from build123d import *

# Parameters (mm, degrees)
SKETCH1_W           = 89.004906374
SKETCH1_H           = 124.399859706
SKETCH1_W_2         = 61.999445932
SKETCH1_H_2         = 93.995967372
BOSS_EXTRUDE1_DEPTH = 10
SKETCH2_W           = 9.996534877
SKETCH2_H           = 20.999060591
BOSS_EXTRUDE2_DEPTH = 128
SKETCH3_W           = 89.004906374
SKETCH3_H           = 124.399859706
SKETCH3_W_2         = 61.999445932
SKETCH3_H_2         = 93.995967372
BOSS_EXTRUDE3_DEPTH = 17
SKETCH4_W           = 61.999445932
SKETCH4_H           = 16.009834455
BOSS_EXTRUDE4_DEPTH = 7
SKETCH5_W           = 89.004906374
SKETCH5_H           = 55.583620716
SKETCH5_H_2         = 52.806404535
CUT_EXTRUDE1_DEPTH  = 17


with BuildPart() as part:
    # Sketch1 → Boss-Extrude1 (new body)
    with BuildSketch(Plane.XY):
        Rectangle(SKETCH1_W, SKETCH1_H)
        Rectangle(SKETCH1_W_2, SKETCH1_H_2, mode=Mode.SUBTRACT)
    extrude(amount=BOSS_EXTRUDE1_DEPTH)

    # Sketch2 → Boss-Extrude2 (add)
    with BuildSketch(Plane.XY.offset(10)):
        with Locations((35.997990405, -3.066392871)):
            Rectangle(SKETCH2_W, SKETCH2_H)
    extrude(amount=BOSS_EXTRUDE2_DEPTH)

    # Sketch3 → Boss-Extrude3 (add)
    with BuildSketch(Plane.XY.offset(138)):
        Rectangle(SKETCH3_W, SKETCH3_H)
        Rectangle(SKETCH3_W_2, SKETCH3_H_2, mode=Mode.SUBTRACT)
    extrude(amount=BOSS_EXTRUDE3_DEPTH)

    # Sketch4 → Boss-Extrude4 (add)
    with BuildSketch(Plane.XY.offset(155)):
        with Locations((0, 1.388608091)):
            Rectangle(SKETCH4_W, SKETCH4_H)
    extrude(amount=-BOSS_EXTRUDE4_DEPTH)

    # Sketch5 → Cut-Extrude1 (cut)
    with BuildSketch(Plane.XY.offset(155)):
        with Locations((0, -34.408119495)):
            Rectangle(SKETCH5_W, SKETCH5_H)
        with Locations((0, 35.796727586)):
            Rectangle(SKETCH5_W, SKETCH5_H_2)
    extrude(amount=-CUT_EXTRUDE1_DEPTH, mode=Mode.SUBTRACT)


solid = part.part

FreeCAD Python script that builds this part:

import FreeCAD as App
import Part
import Sketcher
from FreeCAD import Vector


def add_polygon(sketch, points):
    """Adds a closed chain of lines whose ends are joined by coincident constraints."""
    first, n = sketch.GeometryCount, len(points)
    for a, b in zip(points, points[1:] + points[:1]):
        sketch.addGeometry(Part.LineSegment(App.Vector(*a, 0), App.Vector(*b, 0)), False)
    for i in range(n):
        sketch.addConstraint(Sketcher.Constraint("Coincident", first + i, 2, first + (i + 1) % n, 1))

doc = App.newDocument("Part")
body = doc.addObject("PartDesign::Body", "Body")

# Sketch on XY plane
sketch1 = doc.addObject("Sketcher::SketchObject", "Sketch")
body.addObject(sketch1)
sketch1.AttachmentSupport = (doc.XY_Plane, [""])
sketch1.MapMode = "FlatFace"
add_polygon(sketch1, [(-45, 62), (-45, -62), (45, -62), (45, 62)])  # lines 0-3
add_polygon(sketch1, [(31, -47), (-31, -47), (-31, 47), (31, 47)])  # lines 4-7
sketch1.addConstraint(Sketcher.Constraint("Vertical", 0))
sketch1.addConstraint(Sketcher.Constraint("Horizontal", 1))
sketch1.addConstraint(Sketcher.Constraint("Vertical", 2))
sketch1.addConstraint(Sketcher.Constraint("Horizontal", 3))
sketch1.addConstraint(Sketcher.Constraint("Horizontal", 4))
sketch1.addConstraint(Sketcher.Constraint("Vertical", 5))
sketch1.addConstraint(Sketcher.Constraint("Horizontal", 6))
sketch1.addConstraint(Sketcher.Constraint("Vertical", 7))
sketch1.addConstraint(Sketcher.Constraint("Symmetric", 0, 2, 2, 2, -1, 1))
sketch1.addConstraint(Sketcher.Constraint("Symmetric", 4, 2, 6, 2, -1, 1))
sketch1.addConstraint(Sketcher.Constraint("DistanceY", 0, 2, 0, 1, 124.39986))
sketch1.addConstraint(Sketcher.Constraint("DistanceX", 1, 1, 1, 2, 89.004906))
sketch1.addConstraint(Sketcher.Constraint("DistanceX", 4, 2, 4, 1, 61.999446))
sketch1.addConstraint(Sketcher.Constraint("DistanceY", 5, 1, 5, 2, 93.995967))
pad1 = doc.addObject("PartDesign::Pad", "Pad")
body.addObject(pad1)
pad1.Profile = sketch1
pad1.Length = 10

# Sketch on XY plane
sketch2 = doc.addObject("Sketcher::SketchObject", "Sketch001")
body.addObject(sketch2)
sketch2.AttachmentSupport = (doc.XY_Plane, [""])
sketch2.MapMode = "FlatFace"
sketch2.AttachmentOffset = App.Placement(Vector(0, 0, 10), App.Rotation())
add_polygon(sketch2, [(31, 7), (31, -14), (41, -14), (41, 7)])  # lines 0-3
sketch2.addConstraint(Sketcher.Constraint("Vertical", 0))
sketch2.addConstraint(Sketcher.Constraint("Horizontal", 1))
sketch2.addConstraint(Sketcher.Constraint("Vertical", 2))
sketch2.addConstraint(Sketcher.Constraint("Horizontal", 3))
sketch2.addConstraint(Sketcher.Constraint("DistanceY", 0, 2, 0, 1, 20.999061))
sketch2.addConstraint(Sketcher.Constraint("DistanceX", 1, 1, 1, 2, 9.996535))
sketch2.addConstraint(Sketcher.Constraint("DistanceX", -1, 1, 0, 2, 30.999723))
sketch2.addConstraint(Sketcher.Constraint("DistanceY", 0, 2, -1, 1, 13.565923))
pad2 = doc.addObject("PartDesign::Pad", "Pad001")
body.addObject(pad2)
pad2.Profile = sketch2
pad2.Length = 128

# Sketch on XY plane
sketch3 = doc.addObject("Sketcher::SketchObject", "Sketch002")
body.addObject(sketch3)
sketch3.AttachmentSupport = (doc.XY_Plane, [""])
sketch3.MapMode = "FlatFace"
sketch3.AttachmentOffset = App.Placement(Vector(0, 0, 138), App.Rotation())
add_polygon(sketch3, [(-45, 62), (-45, -62), (45, -62), (45, 62)])  # lines 0-3
add_polygon(sketch3, [(31, -47), (-31, -47), (-31, 47), (31, 47)])  # lines 4-7
sketch3.addConstraint(Sketcher.Constraint("Vertical", 0))
sketch3.addConstraint(Sketcher.Constraint("Horizontal", 1))
sketch3.addConstraint(Sketcher.Constraint("Vertical", 2))
sketch3.addConstraint(Sketcher.Constraint("Horizontal", 3))
sketch3.addConstraint(Sketcher.Constraint("Horizontal", 4))
sketch3.addConstraint(Sketcher.Constraint("Vertical", 5))
sketch3.addConstraint(Sketcher.Constraint("Horizontal", 6))
sketch3.addConstraint(Sketcher.Constraint("Vertical", 7))
sketch3.addConstraint(Sketcher.Constraint("Symmetric", 0, 2, 2, 2, -1, 1))
sketch3.addConstraint(Sketcher.Constraint("Symmetric", 4, 2, 6, 2, -1, 1))
sketch3.addConstraint(Sketcher.Constraint("DistanceY", 0, 2, 0, 1, 124.39986))
sketch3.addConstraint(Sketcher.Constraint("DistanceX", 1, 1, 1, 2, 89.004906))
sketch3.addConstraint(Sketcher.Constraint("DistanceX", 4, 2, 4, 1, 61.999446))
sketch3.addConstraint(Sketcher.Constraint("DistanceY", 5, 1, 5, 2, 93.995967))
pad3 = doc.addObject("PartDesign::Pad", "Pad002")
body.addObject(pad3)
pad3.Profile = sketch3
pad3.Length = 17

# Sketch on XY plane
sketch4 = doc.addObject("Sketcher::SketchObject", "Sketch003")
body.addObject(sketch4)
sketch4.AttachmentSupport = (doc.XY_Plane, [""])
sketch4.MapMode = "FlatFace"
sketch4.AttachmentOffset = App.Placement(Vector(0, 0, 155), App.Rotation())
add_polygon(sketch4, [(-31, 9), (-31, -7), (31, -7), (31, 9)])  # lines 0-3
sketch4.addConstraint(Sketcher.Constraint("Vertical", 0))
sketch4.addConstraint(Sketcher.Constraint("Horizontal", 1))
sketch4.addConstraint(Sketcher.Constraint("Vertical", 2))
sketch4.addConstraint(Sketcher.Constraint("Horizontal", 3))
sketch4.addConstraint(Sketcher.Constraint("DistanceX", 1, 1, 1, 2, 61.999446))
sketch4.addConstraint(Sketcher.Constraint("DistanceY", 0, 2, 0, 1, 16.009834))
sketch4.addConstraint(Sketcher.Constraint("DistanceY", 0, 2, -1, 1, 6.616309))
sketch4.addConstraint(Sketcher.Constraint("DistanceX", 0, 2, -1, 1, 30.999723))
pad4 = doc.addObject("PartDesign::Pad", "Pad003")
body.addObject(pad4)
pad4.Profile = sketch4
pad4.Length = 7
pad4.Reversed = True

# Sketch on XY plane
sketch5 = doc.addObject("Sketcher::SketchObject", "Sketch004")
body.addObject(sketch5)
sketch5.AttachmentSupport = (doc.XY_Plane, [""])
sketch5.MapMode = "FlatFace"
sketch5.AttachmentOffset = App.Placement(Vector(0, 0, 155), App.Rotation())
add_polygon(sketch5, [(-45, -7), (-45, -62), (45, -62), (45, -7)])  # lines 0-3
add_polygon(sketch5, [(-45, 62), (-45, 9), (45, 9), (45, 62)])  # lines 4-7
sketch5.addConstraint(Sketcher.Constraint("Vertical", 0))
sketch5.addConstraint(Sketcher.Constraint("Horizontal", 1))
sketch5.addConstraint(Sketcher.Constraint("Vertical", 2))
sketch5.addConstraint(Sketcher.Constraint("Horizontal", 3))
sketch5.addConstraint(Sketcher.Constraint("Vertical", 4))
sketch5.addConstraint(Sketcher.Constraint("Horizontal", 5))
sketch5.addConstraint(Sketcher.Constraint("Vertical", 6))
sketch5.addConstraint(Sketcher.Constraint("Horizontal", 7))
sketch5.addConstraint(Sketcher.Constraint("Symmetric", 0, 2, 6, 2, -1, 1))
sketch5.addConstraint(Sketcher.Constraint("Vertical", 3, 2, 4, 2))
sketch5.addConstraint(Sketcher.Constraint("Vertical", 2, 2, 5, 2))
sketch5.addConstraint(Sketcher.Constraint("DistanceY", 0, 2, 0, 1, 55.583621))
sketch5.addConstraint(Sketcher.Constraint("DistanceX", 1, 1, 1, 2, 89.004906))
sketch5.addConstraint(Sketcher.Constraint("DistanceY", 4, 2, 4, 1, 52.806405))
sketch5.addConstraint(Sketcher.Constraint("DistanceY", 0, 2, -1, 1, 62.19993))
pocket1 = doc.addObject("PartDesign::Pocket", "Pocket")
body.addObject(pocket1)
pocket1.Profile = sketch5
pocket1.Length = 17

doc.recompute()
